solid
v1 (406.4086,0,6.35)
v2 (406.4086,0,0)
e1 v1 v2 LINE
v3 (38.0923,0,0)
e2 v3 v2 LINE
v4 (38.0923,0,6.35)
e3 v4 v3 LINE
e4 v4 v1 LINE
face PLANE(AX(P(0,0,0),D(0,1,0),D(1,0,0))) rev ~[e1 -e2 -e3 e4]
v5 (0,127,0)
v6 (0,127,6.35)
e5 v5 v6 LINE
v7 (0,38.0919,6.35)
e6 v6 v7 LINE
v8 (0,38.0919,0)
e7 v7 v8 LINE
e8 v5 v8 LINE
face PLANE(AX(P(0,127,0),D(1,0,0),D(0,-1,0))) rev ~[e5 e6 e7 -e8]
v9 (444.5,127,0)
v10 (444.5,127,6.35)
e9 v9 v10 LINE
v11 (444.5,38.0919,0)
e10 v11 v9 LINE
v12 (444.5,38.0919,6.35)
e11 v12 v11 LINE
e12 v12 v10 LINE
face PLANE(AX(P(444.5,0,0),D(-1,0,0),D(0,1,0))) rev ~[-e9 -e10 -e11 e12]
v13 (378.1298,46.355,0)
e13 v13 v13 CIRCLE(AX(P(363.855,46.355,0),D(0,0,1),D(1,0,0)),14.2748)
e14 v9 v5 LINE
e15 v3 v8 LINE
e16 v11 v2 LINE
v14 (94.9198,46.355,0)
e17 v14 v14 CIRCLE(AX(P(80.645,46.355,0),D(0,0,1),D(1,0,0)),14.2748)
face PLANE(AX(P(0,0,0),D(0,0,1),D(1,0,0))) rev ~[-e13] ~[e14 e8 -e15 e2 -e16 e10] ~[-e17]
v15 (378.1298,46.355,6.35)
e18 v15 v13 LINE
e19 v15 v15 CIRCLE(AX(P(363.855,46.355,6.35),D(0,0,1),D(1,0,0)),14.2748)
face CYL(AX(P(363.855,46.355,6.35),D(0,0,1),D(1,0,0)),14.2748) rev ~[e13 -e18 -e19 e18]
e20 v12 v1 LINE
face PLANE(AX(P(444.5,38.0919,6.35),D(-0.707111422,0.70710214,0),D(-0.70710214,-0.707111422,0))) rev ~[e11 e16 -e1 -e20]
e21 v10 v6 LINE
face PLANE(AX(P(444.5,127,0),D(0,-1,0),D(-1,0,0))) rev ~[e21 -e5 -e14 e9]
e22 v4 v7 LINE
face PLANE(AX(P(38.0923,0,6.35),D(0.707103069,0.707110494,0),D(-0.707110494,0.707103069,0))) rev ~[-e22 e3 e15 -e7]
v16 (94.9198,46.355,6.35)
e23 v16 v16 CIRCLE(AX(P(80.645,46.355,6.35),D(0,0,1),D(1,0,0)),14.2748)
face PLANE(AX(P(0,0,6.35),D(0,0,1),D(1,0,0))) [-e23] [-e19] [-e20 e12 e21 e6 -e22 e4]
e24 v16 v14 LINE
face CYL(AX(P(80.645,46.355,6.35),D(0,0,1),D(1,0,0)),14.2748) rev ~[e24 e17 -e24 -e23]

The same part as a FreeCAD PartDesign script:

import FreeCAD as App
import Part
import Sketcher
from FreeCAD import Vector
Q = App.Units.Quantity

doc = App.newDocument("Part")
params = doc.addObject("Spreadsheet::Sheet", "Params")
for row, (alias, value) in enumerate([
    ("sketch1_height", "5 in"),
    ("sketch1_width", "17.5 in"),
    ("pad1_length", "0.25 in"),
    ("pocket1_length", "2 in"),
    ("sketch3_diameter", "1.124 in"),
    ("pocket2_length", "2 in"),
], start=1):
    params.set(f"A{row}", alias)
    params.set(f"B{row}", "=" + value)
    params.setAlias(f"B{row}", alias)

body = doc.addObject("PartDesign::Body", "Body")

# Sketch on XY plane
sketch1 = body.newObject("Sketcher::SketchObject", "Sketch")
sketch1.AttachmentSupport = (doc.getObject("XY_Plane"), [""])
sketch1.MapMode = "FlatFace"
sketch1.addGeometry([
    Part.LineSegment(Vector(0, 127, 0), Vector(0, 0, 0)),
    Part.LineSegment(Vector(0, 0, 0), Vector(444, 0, 0)),
    Part.LineSegment(Vector(444, 0, 0), Vector(444, 127, 0)),
    Part.LineSegment(Vector(444, 127, 0), Vector(0, 127, 0)),
], False)
sketch1.addConstraint([
    Sketcher.Constraint("Coincident", 0, 2, 1, 1),
    Sketcher.Constraint("Coincident", 1, 2, 2, 1),
    Sketcher.Constraint("Coincident", 2, 2, 3, 1),
    Sketcher.Constraint("Coincident", 3, 2, 0, 1),
    Sketcher.Constraint("Vertical", 0),
    Sketcher.Constraint("Horizontal", 1),
    Sketcher.Constraint("Vertical", 2),
    Sketcher.Constraint("Horizontal", 3),
    Sketcher.Constraint("Coincident", 0, 2, -1, 1),
    Sketcher.Constraint("DistanceY", 0, 2, 0, 1, Q("5 in")),
    Sketcher.Constraint("DistanceX", 1, 1, 1, 2, Q("17.5 in")),
])
sketch1.setExpression("Constraints[9]", "Params.sketch1_height")
sketch1.setExpression("Constraints[10]", "Params.sketch1_width")
pad1 = body.newObject("PartDesign::Pad", "Pad")
pad1.Profile = sketch1
pad1.setExpression("Length", "Params.pad1_length")

# Sketch on XY plane
sketch2 = body.newObject("Sketcher::SketchObject", "Sketch001")
sketch2.AttachmentSupport = (doc.getObject("XY_Plane"), [""])
sketch2.MapMode = "FlatFace"
sketch2.AttachmentOffset = App.Placement(Vector(0, 0, 0.25 * 25.4), App.Rotation())
sketch2.addGeometry([
    Part.LineSegment(Vector(0, 38, 0), Vector(0, 0, 0)),  # 0
    Part.LineSegment(Vector(0, 0, 0), Vector(38, 0, 0)),  # 1
    Part.LineSegment(Vector(38, 0, 0), Vector(0, 38, 0)),  # 2
    Part.LineSegment(Vector(444, 38, 0), Vector(406, 0, 0)),  # 3
    Part.LineSegment(Vector(406, 0, 0), Vector(444, 0, 0)),  # 4
    Part.LineSegment(Vector(444, 0, 0), Vector(444, 38, 0)),  # 5
], False)
sketch2.addConstraint([
    Sketcher.Constraint("Coincident", 0, 2, 1, 1),
    Sketcher.Constraint("Coincident", 1, 2, 2, 1),
    Sketcher.Constraint("Coincident", 2, 2, 0, 1),
    Sketcher.Constraint("Coincident", 3, 2, 4, 1),
    Sketcher.Constraint("Coincident", 4, 2, 5, 1),
    Sketcher.Constraint("Coincident", 5, 2, 3, 1),
    Sketcher.Constraint("Vertical", 0),
    Sketcher.Constraint("Horizontal", 1),
    Sketcher.Constraint("Horizontal", 4),
    Sketcher.Constraint("Vertical", 5),
    Sketcher.Constraint("Coincident", 0, 2, -1, 1),
    Sketcher.Constraint("PointOnObject", 3, 2, -1),
    Sketcher.Constraint("Perpendicular", 2, 3),
    Sketcher.Constraint("Horizontal", 2, 2, 5, 2),
    Sketcher.Constraint("Angle", 2, Q("135.0003 deg")),
    Sketcher.Constraint("DistanceX", -1, 1, 4, 2, Q("17.5 in")),
    Sketcher.Constraint("DistanceX", 1, 1, 1, 2, Q("1.4997 in")),
])
pocket1 = body.newObject("PartDesign::Pocket", "Pocket")
pocket1.Profile = sketch2
pocket1.setExpression("Length", "Params.pocket1_length")

# Sketch on XY plane
sketch3 = body.newObject("Sketcher::SketchObject", "Sketch002")
sketch3.AttachmentSupport = (doc.getObject("XY_Plane"), [""])
sketch3.MapMode = "FlatFace"
sketch3.AttachmentOffset = App.Placement(Vector(0, 0, 0.25 * 25.4), App.Rotation())
sketch3.addGeometry([
    Part.Circle(Vector(81, 46, 0), Vector(0, 0, 1), 14),
    Part.Circle(Vector(364, 46, 0), Vector(0, 0, 1), 14),
], False)
sketch3.addConstraint([
    Sketcher.Constraint("Equal", 0, 1),
    Sketcher.Constraint("Horizontal", 0, 3, 1, 3),
    Sketcher.Constraint("Diameter", 0, Q("1.124 in")),
    Sketcher.Constraint("DistanceX", 0, 3, 1, 3, Q("11.15 in")),
    Sketcher.Constraint("DistanceX", -1, 1, 0, 3, Q("3.175 in")),
    Sketcher.Constraint("DistanceY", -1, 1, 0, 3, Q("1.825 in")),
])
sketch3.setExpression("Constraints[2]", "Params.sketch3_diameter")
pocket2 = body.newObject("PartDesign::Pocket", "Pocket001")
pocket2.Profile = sketch3
pocket2.setExpression("Length", "Params.pocket2_length")

doc.recompute()
